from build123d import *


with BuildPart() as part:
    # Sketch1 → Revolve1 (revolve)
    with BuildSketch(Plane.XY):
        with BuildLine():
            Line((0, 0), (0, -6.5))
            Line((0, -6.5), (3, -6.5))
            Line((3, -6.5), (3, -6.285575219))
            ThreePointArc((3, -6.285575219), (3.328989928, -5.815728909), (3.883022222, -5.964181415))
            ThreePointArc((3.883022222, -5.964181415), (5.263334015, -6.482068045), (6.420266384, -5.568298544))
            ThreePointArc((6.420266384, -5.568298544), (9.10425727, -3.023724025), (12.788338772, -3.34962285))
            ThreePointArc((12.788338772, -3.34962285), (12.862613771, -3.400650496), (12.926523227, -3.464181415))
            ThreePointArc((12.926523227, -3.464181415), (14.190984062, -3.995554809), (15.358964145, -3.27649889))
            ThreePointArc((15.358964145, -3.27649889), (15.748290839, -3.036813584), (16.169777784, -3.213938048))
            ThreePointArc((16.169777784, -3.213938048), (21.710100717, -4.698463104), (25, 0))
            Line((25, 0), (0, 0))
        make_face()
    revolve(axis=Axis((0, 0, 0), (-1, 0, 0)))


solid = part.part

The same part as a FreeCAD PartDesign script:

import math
import FreeCAD as App
import Part
import Sketcher

V = App.Vector
Q = App.Units.Quantity

doc = App.newDocument("Part")
params = doc.addObject("Spreadsheet::Sheet", "Params")
for row, (alias, value) in enumerate([
    ("sketch1_radius", "5 mm"),
    ("sketch1_radius2", "0.5 mm"),
    ("sketch1_radius3", "1.5 mm"),
    ("sketch1_radius4", "4.5 mm"),
    ("sketch1_width", "3 mm"),
    ("revolution_angle", "360 deg"),
], start=1):
    params.set(f"A{row}", alias)
    params.set(f"B{row}", "=" + value)
    params.setAlias(f"B{row}", alias)

body = doc.addObject("PartDesign::Body", "Body")

# Sketch on XY plane
sketch1 = body.newObject("Sketcher::SketchObject", "Sketch")
sketch1.AttachmentSupport = (doc.getObject("XY_Plane"), [""])
sketch1.MapMode = "FlatFace"
sketch1.addGeometry(Part.LineSegment(V(0, 0, 0), V(0, -6.5, 0)), False)
sketch1.addGeometry(Part.LineSegment(V(0, -6.5, 0), V(3, -6.5, 0)), False)
sketch1.addGeometry(Part.LineSegment(V(3, -6.5, 0), V(3, -6.29, 0)), False)
sketch1.addGeometry(Part.ArcOfCircle(Part.Circle(V(3.5, -6.29, 0), V(0, 0, 1), 0.5), math.radians(40), math.radians(180)), False)
sketch1.addGeometry(Part.ArcOfCircle(Part.Circle(V(5.03, -5, 0), V(0, 0, 1), 1.5), math.radians(-140), math.radians(-22)), False)
sketch1.addGeometry(Part.ArcOfCircle(Part.Circle(V(10.58, -7.27, 0), V(0, 0, 1), 4.5), math.radians(61), math.radians(158)), False)
sketch1.addGeometry(Part.ArcOfCircle(Part.Circle(V(12.54, -3.79, 0), V(0, 0, 1), 0.5), math.radians(40), math.radians(61)), False)
sketch1.addGeometry(Part.ArcOfCircle(Part.Circle(V(14.08, -2.5, 0), V(0, 0, 1), 1.5), math.radians(-140), math.radians(-31)), False)
sketch1.addGeometry(Part.ArcOfCircle(Part.Circle(V(15.79, -3.54, 0), V(0, 0, 1), 0.5), math.radians(40), math.radians(149)), False)
sketch1.addGeometry(Part.ArcOfCircle(Part.Circle(V(20, 0, 0), V(0, 0, 1), 5), math.radians(-140), math.radians(0)), False)
sketch1.addGeometry(Part.LineSegment(V(25, 0, 0), V(0, 0, 0)), False)
sketch1.addConstraint(Sketcher.Constraint("Coincident", 0, 2, 1, 1))
sketch1.addConstraint(Sketcher.Constraint("Coincident", 1, 2, 2, 1))
sketch1.addConstraint(Sketcher.Constraint("Tangent", 2, 2, 3, 2))
sketch1.addConstraint(Sketcher.Constraint("Tangent", 3, 1, 4, 1))
sketch1.addConstraint(Sketcher.Constraint("Tangent", 4, 2, 5, 2))
sketch1.addConstraint(Sketcher.Constraint("Tangent", 5, 1, 6, 2))
sketch1.addConstraint(Sketcher.Constraint("Tangent", 6, 1, 7, 1))
sketch1.addConstraint(Sketcher.Constraint("Tangent", 7, 2, 8, 2))
sketch1.addConstraint(Sketcher.Constraint("Tangent", 8, 1, 9, 1))
sketch1.addConstraint(Sketcher.Constraint("Coincident", 9, 2, 10, 1))
sketch1.addConstraint(Sketcher.Constraint("Coincident", 10, 2, 0, 1))
sketch1.addConstraint(Sketcher.Constraint("Vertical", 0))
sketch1.addConstraint(Sketcher.Constraint("Horizontal", 1))
sketch1.addConstraint(Sketcher.Constraint("Vertical", 2))
sketch1.addConstraint(Sketcher.Constraint("Horizontal", 10))
sketch1.addConstraint(Sketcher.Constraint("Coincident", 10, 2, -1, 1))
sketch1.addConstraint(Sketcher.Constraint("Equal", 3, 6))
sketch1.addConstraint(Sketcher.Constraint("Equal", 4, 7))
sketch1.addConstraint(Sketcher.Constraint("Equal", 6, 8))
sketch1.addConstraint(Sketcher.Constraint("PointOnObject", 9, 3, -1))
sketch1.addConstraint(Sketcher.Constraint("Radius", 9, Q("5 mm")))
sketch1.addConstraint(Sketcher.Constraint("Radius", 3, Q("0.5 mm")))
sketch1.addConstraint(Sketcher.Constraint("Radius", 4, Q("1.5 mm")))
sketch1.addConstraint(Sketcher.Constraint("Radius", 5, Q("4.5 mm")))
sketch1.addConstraint(Sketcher.Constraint("DistanceX", 1, 1, 1, 2, Q("3 mm")))
sketch1.addConstraint(Sketcher.Constraint("DistanceX", 10, 2, 10, 1, Q("25 mm")))
sketch1.addConstraint(Sketcher.Constraint("DistanceY", 0, 2, 0, 1, Q("6.5 mm")))
sketch1.addConstraint(Sketcher.Constraint("DistanceY", 4, 3, -1, 1, Q("5 mm")))
sketch1.addConstraint(Sketcher.Constraint("DistanceY", 0, 2, 7, 3, Q("4 mm")))
sketch1.addConstraint(Sketcher.Constraint("DistanceY", 3, 3, 6, 3, Q("2.5 mm")))
sketch1.addConstraint(Sketcher.Constraint("DistanceX", -1, 1, 5, 3, Q("10.584799 mm")))
sketch1.addConstraint(Sketcher.Constraint("DistanceX", -1, 1, 6, 3, Q("12.543501 mm")))
sketch1.setExpression("Constraints[20]", "Params.sketch1_radius")
sketch1.setExpression("Constraints[21]", "Params.sketch1_radius2")
sketch1.setExpression("Constraints[22]", "Params.sketch1_radius3")
sketch1.setExpression("Constraints[23]", "Params.sketch1_radius4")
sketch1.setExpression("Constraints[24]", "Params.sketch1_width")
revolution = body.newObject("PartDesign::Revolution", "Revolution")
revolution.Profile = sketch1
revolution.ReferenceAxis = (sketch1, ["H_Axis"])
revolution.setExpression("Angle", "Params.revolution_angle")

doc.recompute()
